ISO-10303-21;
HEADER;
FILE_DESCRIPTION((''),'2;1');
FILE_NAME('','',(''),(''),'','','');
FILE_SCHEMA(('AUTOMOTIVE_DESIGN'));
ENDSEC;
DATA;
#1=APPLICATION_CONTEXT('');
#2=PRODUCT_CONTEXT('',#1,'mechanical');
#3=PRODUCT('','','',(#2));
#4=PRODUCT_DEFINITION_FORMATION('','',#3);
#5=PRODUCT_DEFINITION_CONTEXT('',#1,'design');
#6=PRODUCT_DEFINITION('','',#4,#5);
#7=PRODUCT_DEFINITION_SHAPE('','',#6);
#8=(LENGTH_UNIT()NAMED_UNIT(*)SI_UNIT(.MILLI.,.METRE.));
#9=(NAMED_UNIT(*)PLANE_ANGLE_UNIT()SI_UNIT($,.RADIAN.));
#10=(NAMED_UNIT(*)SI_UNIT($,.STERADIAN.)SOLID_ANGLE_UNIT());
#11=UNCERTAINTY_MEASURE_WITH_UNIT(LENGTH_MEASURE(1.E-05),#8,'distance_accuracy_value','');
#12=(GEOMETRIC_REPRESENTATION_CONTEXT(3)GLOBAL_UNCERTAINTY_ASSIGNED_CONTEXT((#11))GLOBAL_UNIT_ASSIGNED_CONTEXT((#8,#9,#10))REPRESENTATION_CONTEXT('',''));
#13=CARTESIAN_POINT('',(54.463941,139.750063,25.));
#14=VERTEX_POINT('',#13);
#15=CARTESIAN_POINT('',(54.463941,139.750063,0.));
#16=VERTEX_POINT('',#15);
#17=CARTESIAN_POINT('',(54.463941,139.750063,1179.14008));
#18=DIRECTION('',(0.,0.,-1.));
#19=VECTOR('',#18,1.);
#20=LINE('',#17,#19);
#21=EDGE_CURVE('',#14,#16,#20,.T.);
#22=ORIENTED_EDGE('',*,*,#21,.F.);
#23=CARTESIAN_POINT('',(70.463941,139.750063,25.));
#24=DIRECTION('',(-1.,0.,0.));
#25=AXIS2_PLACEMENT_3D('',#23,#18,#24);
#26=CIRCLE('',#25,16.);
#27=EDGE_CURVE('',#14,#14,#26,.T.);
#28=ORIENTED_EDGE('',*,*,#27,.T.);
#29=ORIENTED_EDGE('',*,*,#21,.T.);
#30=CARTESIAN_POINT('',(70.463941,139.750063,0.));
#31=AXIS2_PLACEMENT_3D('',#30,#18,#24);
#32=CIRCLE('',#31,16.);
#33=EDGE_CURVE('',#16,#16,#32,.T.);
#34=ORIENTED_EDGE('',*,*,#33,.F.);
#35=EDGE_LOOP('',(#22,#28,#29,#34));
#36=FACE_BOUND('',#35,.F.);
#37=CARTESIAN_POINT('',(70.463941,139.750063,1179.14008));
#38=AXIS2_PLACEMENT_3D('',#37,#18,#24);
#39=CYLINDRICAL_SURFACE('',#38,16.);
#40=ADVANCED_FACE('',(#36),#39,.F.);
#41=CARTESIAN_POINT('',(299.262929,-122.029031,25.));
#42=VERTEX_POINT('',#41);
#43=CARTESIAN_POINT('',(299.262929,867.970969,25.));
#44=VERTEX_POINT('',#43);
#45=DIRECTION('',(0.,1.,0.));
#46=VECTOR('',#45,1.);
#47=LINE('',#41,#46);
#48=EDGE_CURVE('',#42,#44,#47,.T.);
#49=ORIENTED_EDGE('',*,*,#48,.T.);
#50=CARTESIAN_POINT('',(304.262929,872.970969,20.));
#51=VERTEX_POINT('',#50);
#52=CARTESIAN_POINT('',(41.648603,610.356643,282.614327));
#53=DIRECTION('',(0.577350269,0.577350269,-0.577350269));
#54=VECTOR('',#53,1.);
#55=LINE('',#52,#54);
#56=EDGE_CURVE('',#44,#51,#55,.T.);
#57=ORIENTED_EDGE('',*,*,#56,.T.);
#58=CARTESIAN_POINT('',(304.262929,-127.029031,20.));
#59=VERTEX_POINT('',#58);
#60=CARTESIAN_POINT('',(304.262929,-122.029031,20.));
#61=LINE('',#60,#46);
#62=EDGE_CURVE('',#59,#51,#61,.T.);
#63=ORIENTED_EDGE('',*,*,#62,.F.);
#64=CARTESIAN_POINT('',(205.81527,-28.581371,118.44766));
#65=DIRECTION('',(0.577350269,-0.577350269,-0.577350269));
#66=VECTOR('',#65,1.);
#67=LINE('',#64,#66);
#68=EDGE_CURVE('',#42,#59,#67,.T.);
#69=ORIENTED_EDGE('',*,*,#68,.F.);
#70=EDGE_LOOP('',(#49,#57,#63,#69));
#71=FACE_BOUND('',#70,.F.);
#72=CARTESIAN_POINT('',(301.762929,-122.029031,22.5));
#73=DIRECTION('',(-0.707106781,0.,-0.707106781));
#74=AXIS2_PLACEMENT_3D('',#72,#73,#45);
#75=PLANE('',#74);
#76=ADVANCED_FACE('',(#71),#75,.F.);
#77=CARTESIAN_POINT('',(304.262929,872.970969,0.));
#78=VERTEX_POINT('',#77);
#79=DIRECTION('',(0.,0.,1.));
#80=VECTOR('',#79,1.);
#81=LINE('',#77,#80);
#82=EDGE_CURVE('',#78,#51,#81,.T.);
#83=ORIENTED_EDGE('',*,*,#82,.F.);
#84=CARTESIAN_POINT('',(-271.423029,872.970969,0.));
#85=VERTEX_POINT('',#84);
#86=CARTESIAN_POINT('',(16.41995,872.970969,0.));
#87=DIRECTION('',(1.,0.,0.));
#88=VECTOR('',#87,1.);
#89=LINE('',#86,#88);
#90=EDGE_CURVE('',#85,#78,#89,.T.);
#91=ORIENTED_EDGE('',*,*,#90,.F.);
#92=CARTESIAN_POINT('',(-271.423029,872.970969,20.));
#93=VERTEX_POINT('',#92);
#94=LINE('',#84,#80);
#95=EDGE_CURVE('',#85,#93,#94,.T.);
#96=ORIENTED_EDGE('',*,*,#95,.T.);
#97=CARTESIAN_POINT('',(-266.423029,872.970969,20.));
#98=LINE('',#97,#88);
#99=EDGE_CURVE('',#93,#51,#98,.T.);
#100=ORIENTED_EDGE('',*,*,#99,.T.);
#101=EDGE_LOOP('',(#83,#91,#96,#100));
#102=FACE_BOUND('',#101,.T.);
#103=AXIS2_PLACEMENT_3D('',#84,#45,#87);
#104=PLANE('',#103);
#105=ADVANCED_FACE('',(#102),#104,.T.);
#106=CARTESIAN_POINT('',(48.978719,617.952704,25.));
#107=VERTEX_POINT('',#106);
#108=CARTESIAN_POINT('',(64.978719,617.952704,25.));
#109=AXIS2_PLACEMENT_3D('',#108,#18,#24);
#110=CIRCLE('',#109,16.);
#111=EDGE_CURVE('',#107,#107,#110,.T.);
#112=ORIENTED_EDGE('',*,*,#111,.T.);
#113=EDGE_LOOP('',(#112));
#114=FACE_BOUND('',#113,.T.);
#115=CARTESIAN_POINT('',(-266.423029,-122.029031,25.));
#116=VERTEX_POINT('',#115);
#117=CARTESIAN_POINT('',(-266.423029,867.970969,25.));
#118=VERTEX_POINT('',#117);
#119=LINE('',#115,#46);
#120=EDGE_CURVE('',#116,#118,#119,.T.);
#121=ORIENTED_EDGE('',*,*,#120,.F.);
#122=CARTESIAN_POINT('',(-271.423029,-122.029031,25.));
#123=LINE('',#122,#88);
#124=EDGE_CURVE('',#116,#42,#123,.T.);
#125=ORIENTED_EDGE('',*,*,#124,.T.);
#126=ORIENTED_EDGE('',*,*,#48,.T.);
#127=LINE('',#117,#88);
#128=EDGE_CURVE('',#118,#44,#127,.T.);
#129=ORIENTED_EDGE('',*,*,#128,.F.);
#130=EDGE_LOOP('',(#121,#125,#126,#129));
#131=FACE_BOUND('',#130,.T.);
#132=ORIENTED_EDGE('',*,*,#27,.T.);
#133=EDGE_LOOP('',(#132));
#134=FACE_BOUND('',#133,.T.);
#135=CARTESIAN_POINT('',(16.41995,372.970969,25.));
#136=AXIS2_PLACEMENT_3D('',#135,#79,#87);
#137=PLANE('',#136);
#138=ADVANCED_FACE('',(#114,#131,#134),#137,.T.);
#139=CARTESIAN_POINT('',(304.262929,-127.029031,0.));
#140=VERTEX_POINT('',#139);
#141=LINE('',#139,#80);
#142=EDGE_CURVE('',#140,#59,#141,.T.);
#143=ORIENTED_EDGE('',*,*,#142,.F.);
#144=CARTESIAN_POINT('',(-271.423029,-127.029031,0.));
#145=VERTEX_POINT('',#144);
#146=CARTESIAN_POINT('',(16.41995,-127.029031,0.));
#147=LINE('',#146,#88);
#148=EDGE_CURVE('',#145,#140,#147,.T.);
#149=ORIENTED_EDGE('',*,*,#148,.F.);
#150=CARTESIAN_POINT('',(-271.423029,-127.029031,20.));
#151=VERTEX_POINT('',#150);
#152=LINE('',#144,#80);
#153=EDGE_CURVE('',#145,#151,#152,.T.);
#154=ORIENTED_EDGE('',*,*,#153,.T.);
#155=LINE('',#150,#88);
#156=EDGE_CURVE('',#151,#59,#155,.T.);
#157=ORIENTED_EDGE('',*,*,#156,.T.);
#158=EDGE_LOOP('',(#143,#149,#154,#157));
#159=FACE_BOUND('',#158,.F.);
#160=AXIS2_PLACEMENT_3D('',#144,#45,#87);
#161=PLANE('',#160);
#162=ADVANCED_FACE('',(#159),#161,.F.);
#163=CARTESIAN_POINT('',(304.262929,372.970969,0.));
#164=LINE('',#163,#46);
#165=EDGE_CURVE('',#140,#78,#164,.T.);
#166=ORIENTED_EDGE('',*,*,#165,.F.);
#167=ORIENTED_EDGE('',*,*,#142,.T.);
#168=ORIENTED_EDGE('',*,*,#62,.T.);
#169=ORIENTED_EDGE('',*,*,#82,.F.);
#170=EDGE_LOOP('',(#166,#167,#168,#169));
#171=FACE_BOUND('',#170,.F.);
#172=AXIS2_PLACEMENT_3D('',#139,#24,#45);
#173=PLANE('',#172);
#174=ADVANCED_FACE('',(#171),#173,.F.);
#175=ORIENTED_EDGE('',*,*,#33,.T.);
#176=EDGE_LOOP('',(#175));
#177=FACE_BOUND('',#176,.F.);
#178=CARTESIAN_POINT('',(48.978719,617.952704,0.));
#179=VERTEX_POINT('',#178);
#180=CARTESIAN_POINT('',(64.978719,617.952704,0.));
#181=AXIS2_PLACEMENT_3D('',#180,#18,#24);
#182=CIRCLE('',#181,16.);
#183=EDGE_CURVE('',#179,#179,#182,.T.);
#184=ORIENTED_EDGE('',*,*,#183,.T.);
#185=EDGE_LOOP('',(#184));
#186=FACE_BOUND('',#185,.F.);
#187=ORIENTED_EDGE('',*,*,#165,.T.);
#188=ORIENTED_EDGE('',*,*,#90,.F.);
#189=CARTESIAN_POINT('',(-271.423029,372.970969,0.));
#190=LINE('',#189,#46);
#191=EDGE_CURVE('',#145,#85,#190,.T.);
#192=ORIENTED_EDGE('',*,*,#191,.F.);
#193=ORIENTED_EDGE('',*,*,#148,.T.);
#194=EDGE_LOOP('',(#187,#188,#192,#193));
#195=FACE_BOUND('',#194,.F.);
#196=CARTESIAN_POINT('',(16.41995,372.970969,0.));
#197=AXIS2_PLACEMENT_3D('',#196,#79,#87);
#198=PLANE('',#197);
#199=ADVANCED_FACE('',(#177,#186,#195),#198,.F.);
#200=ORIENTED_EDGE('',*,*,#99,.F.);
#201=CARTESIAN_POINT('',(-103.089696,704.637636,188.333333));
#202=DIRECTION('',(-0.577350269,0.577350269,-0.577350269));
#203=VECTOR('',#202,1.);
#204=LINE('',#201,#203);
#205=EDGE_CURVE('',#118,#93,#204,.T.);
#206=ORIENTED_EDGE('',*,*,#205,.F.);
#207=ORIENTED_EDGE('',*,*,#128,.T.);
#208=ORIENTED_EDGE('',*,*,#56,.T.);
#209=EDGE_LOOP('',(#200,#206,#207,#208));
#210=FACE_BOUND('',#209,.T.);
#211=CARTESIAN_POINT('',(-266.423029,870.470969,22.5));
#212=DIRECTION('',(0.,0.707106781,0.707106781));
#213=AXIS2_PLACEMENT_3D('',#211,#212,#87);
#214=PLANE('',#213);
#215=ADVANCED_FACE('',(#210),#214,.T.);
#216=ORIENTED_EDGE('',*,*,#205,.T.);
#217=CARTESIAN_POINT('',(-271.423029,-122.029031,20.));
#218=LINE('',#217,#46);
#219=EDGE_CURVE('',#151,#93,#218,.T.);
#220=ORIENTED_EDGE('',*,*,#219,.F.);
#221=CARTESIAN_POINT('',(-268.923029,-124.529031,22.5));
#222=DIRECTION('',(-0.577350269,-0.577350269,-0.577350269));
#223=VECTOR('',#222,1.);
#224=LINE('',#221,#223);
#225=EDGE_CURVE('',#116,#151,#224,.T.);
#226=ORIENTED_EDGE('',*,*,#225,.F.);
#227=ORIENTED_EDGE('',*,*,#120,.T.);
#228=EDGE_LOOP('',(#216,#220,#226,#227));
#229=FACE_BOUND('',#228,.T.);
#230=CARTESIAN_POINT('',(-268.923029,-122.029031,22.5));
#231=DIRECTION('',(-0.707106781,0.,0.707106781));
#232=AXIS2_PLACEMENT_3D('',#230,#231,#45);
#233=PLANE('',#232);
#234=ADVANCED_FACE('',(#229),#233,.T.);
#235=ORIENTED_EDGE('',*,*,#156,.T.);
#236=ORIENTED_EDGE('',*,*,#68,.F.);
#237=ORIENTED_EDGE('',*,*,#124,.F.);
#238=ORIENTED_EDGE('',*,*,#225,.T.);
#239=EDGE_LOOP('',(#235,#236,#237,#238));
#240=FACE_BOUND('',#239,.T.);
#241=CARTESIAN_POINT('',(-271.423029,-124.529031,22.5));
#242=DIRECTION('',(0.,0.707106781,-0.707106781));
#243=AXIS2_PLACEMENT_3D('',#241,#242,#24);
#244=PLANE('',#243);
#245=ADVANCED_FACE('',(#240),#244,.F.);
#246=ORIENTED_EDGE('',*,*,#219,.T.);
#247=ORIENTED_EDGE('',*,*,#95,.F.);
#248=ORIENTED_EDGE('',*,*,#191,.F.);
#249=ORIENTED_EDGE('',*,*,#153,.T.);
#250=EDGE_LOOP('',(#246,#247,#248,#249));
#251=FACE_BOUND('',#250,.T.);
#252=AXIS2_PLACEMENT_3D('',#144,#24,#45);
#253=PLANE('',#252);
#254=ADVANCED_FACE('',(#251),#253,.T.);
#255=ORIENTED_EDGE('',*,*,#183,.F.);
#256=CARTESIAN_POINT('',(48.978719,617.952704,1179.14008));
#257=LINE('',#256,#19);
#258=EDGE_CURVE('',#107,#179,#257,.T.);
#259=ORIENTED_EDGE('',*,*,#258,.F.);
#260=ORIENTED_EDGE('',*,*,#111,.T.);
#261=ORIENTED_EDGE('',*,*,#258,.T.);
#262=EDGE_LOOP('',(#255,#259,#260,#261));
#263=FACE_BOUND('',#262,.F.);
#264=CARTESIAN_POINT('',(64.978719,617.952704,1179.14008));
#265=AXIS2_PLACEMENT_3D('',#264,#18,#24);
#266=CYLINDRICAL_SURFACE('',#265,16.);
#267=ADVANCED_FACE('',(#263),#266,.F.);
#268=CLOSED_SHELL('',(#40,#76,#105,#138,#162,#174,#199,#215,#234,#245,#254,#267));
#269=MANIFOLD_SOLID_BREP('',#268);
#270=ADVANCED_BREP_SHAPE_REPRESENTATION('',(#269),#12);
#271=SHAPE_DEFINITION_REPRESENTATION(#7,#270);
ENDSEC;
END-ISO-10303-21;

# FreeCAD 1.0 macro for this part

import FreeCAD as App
import Part
import Sketcher
from FreeCAD import Vector
Q = App.Units.Quantity


def edges_at(feature, points):
    """Names of the edges that pass closest to the given points."""
    edges = feature.Shape.Edges
    near = lambda p: min(range(len(edges)), key=lambda i: edges[i].distToShape(Part.Vertex(*p))[0])
    return sorted({f"Edge{near(p) + 1}" for p in points})

doc = App.newDocument("Part")
body = doc.addObject("PartDesign::Body", "Body")

# Sketch on XY plane
sketch1 = body.newObject("Sketcher::SketchObject", "Sketch")
sketch1.AttachmentSupport = (doc.getObject("XY_Plane"), [""])
sketch1.MapMode = "FlatFace"
sketch1.addGeometry(Part.LineSegment(Vector(-271, 873, 0), Vector(-271, -127, 0)), False)
sketch1.addGeometry(Part.LineSegment(Vector(-271, -127, 0), Vector(304, -127, 0)), False)
sketch1.addGeometry(Part.LineSegment(Vector(304, -127, 0), Vector(304, 873, 0)), False)
sketch1.addGeometry(Part.LineSegment(Vector(304, 873, 0), Vector(-271, 873, 0)), False)
sketch1.addConstraint(Sketcher.Constraint("Coincident", 0, 2, 1, 1))
sketch1.addConstraint(Sketcher.Constraint("Coincident", 1, 2, 2, 1))
sketch1.addConstraint(Sketcher.Constraint("Coincident", 2, 2, 3, 1))
sketch1.addConstraint(Sketcher.Constraint("Coincident", 3, 2, 0, 1))
sketch1.addConstraint(Sketcher.Constraint("Vertical", 0))
sketch1.addConstraint(Sketcher.Constraint("Horizontal", 1))
sketch1.addConstraint(Sketcher.Constraint("Vertical", 2))
sketch1.addConstraint(Sketcher.Constraint("Horizontal", 3))
sketch1.addConstraint(Sketcher.Constraint("DistanceY", 0, 2, 0, 1, Q("1000 mm")))
sketch1.addConstraint(Sketcher.Constraint("DistanceX", 1, 1, 1, 2, Q("575.685959 mm")))
sketch1.addConstraint(Sketcher.Constraint("DistanceX", 0, 2, -1, 1, Q("271.423029 mm")))
sketch1.addConstraint(Sketcher.Constraint("DistanceY", 0, 2, -1, 1, Q("127.029031 mm")))
pad1 = body.newObject("PartDesign::Pad", "Pad")
pad1.Profile = sketch1
pad1.Length = 25
doc.recompute()

chamfer = body.newObject("PartDesign::Chamfer", "Chamfer")
chamfer.Base = (pad1, edges_at(pad1, [(16.42, -127.029, 25)]))
chamfer.Size = 5
doc.recompute()

chamfer2 = body.newObject("PartDesign::Chamfer", "Chamfer001")
chamfer2.Base = (chamfer, edges_at(chamfer, [(304.263, 375.471, 25)]))
chamfer2.Size = 5
doc.recompute()

chamfer3 = body.newObject("PartDesign::Chamfer", "Chamfer002")
chamfer3.Base = (chamfer2, edges_at(chamfer2, [(-271.423, 375.471, 25)]))
chamfer3.Size = 5
doc.recompute()

chamfer4 = body.newObject("PartDesign::Chamfer", "Chamfer003")
chamfer4.Base = (chamfer3, edges_at(chamfer3, [(16.42, 872.971, 25)]))
chamfer4.Size = 5

# Sketch on XY plane
sketch2 = body.newObject("Sketcher::SketchObject", "Sketch001")
sketch2.AttachmentSupport = (doc.getObject("XY_Plane"), [""])
sketch2.MapMode = "FlatFace"
sketch2.AttachmentOffset = App.Placement(Vector(0, 0, 25), App.Rotation())
sketch2.addGeometry(Part.Circle(Vector(65, 618, 0), Vector(0, 0, 1), 16), False)
sketch2.addGeometry(Part.Circle(Vector(70, 140, 0), Vector(0, 0, 1), 16), False)
sketch2.addConstraint(Sketcher.Constraint("Equal", 0, 1))
sketch2.addConstraint(Sketcher.Constraint("Diameter", 0, Q("32 mm")))
sketch2.addConstraint(Sketcher.Constraint("DistanceX", -1, 1, 0, 3, Q("64.978719 mm")))
sketch2.addConstraint(Sketcher.Constraint("DistanceX", -1, 1, 1, 3, Q("70.463941 mm")))
sketch2.addConstraint(Sketcher.Constraint("DistanceY", 1, 3, 0, 3, Q("478.202641 mm")))
sketch2.addConstraint(Sketcher.Constraint("DistanceY", -1, 1, 0, 3, Q("617.952704 mm")))
doc.recompute()
hole = body.newObject("PartDesign::Hole", "Hole")
hole.Profile = sketch2
hole.ThreadType = "None"
hole.Diameter = 32
hole.DepthType = "ThroughAll"

doc.recompute()
